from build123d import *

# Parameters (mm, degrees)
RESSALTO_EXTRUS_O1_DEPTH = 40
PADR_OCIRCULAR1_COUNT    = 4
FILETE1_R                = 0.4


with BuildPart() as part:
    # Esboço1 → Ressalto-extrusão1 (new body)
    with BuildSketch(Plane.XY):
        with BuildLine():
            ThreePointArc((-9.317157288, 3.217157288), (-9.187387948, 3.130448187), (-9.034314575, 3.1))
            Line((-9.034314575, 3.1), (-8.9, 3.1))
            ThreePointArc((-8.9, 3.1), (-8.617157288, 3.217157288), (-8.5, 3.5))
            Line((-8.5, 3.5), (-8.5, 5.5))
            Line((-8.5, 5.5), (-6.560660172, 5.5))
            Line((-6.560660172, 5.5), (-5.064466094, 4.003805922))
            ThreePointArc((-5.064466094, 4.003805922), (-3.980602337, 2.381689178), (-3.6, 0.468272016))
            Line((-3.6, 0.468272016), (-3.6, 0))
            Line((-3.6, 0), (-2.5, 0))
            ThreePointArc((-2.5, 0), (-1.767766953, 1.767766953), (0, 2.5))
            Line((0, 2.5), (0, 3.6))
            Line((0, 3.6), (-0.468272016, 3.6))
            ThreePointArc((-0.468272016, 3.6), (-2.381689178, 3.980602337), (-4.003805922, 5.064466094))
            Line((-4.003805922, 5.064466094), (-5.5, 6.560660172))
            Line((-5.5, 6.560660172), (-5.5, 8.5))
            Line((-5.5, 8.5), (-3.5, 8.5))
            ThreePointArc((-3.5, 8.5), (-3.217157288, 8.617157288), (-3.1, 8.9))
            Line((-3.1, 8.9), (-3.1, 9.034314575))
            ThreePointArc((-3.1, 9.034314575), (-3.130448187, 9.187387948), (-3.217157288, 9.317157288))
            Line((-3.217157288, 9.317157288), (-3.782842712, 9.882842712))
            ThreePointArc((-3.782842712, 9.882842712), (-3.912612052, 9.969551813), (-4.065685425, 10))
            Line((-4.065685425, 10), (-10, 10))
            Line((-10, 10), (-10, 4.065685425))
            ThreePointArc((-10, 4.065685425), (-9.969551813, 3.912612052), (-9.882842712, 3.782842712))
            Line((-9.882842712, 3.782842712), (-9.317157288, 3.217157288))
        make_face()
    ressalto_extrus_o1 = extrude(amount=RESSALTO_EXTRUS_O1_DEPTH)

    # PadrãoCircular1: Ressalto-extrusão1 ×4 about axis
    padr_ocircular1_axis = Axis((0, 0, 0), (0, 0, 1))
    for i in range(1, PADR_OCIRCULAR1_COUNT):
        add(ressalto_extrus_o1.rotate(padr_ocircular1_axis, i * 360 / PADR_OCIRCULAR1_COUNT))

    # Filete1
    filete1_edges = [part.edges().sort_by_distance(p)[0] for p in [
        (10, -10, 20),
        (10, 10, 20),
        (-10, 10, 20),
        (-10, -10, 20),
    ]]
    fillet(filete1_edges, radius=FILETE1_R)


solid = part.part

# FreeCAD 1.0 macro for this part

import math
import FreeCAD as App
import Part
import Sketcher
from FreeCAD import Vector
Q = App.Units.Quantity


def edges_at(feature, points):
    """Names of the edges that pass closest to the given points."""
    edges = feature.Shape.Edges
    near = lambda p: min(range(len(edges)), key=lambda i: edges[i].distToShape(Part.Vertex(*p))[0])
    return sorted({f"Edge{near(p) + 1}" for p in points})

doc = App.newDocument("Part")
body = doc.addObject("PartDesign::Body", "Body")

sketch1 = body.newObject("Sketcher::SketchObject", "Sketch")
sketch1.AttachmentSupport = (doc.getObject("XY_Plane"), [""])
sketch1.MapMode = "FlatFace"
sketch1.addGeometry([
    Part.ArcOfCircle(Part.Circle(Vector(-9.034315, 3.5, 0), Vector(0, 0, 1), 0.4), math.radians(-135), math.radians(-90)),
    Part.LineSegment(Vector(-9.034315, 3.1, 0), Vector(-8.9, 3.1, 0)),
    Part.ArcOfCircle(Part.Circle(Vector(-8.9, 3.5, 0), Vector(0, 0, 1), 0.4), math.radians(-90), math.radians(0)),
    Part.LineSegment(Vector(-8.5, 3.5, 0), Vector(-8.5, 5.5, 0)),
    Part.LineSegment(Vector(-8.5, 5.5, 0), Vector(-6.56066, 5.5, 0)),
    Part.LineSegment(Vector(-6.56066, 5.5, 0), Vector(-5.064466, 4.003806, 0)),
    Part.ArcOfCircle(Part.Circle(Vector(-8.6, 0.468272, 0), Vector(0, 0, 1), 5), math.radians(0), math.radians(45)),
    Part.LineSegment(Vector(-3.6, 0.468272, 0), Vector(-3.6, 0, 0)),
    Part.LineSegment(Vector(-3.6, 0, 0), Vector(-2.5, 0, 0)),
    Part.ArcOfCircle(Part.Circle(Vector(0, 0, 0), Vector(0, 0, 1), 2.5), math.radians(90), math.radians(180)),
    Part.LineSegment(Vector(0, 2.5, 0), Vector(0, 3.6, 0)),
    Part.LineSegment(Vector(0, 3.6, 0), Vector(-0.468272, 3.6, 0)),
    Part.ArcOfCircle(Part.Circle(Vector(-0.468272, 8.6, 0), Vector(0, 0, 1), 5), math.radians(-135), math.radians(-90)),
    Part.LineSegment(Vector(-4.003806, 5.064466, 0), Vector(-5.5, 6.56066, 0)),
    Part.LineSegment(Vector(-5.5, 6.56066, 0), Vector(-5.5, 8.5, 0)),
    Part.LineSegment(Vector(-5.5, 8.5, 0), Vector(-3.5, 8.5, 0)),
    Part.ArcOfCircle(Part.Circle(Vector(-3.5, 8.9, 0), Vector(0, 0, 1), 0.4), math.radians(-90), math.radians(0)),
    Part.LineSegment(Vector(-3.1, 8.9, 0), Vector(-3.1, 9.034315, 0)),
    Part.ArcOfCircle(Part.Circle(Vector(-3.5, 9.034315, 0), Vector(0, 0, 1), 0.4), math.radians(0), math.radians(45)),
    Part.LineSegment(Vector(-3.217157, 9.317157, 0), Vector(-3.782843, 9.882843, 0)),
    Part.ArcOfCircle(Part.Circle(Vector(-4.065685, 9.6, 0), Vector(0, 0, 1), 0.4), math.radians(45), math.radians(90)),
    Part.LineSegment(Vector(-4.065685, 10, 0), Vector(-10, 10, 0)),
    Part.LineSegment(Vector(-10, 10, 0), Vector(-10, 4.065685, 0)),
    Part.ArcOfCircle(Part.Circle(Vector(-9.6, 4.065685, 0), Vector(0, 0, 1), 0.4), math.radians(180), math.radians(225)),
    Part.LineSegment(Vector(-9.882843, 3.782843, 0), Vector(-9.317157, 3.217157, 0)),
], False)
sketch1.addConstraint([
    Sketcher.Constraint("Tangent", 0, 2, 1, 1),
    Sketcher.Constraint("Tangent", 1, 2, 2, 1),
    Sketcher.Constraint("Tangent", 2, 2, 3, 1),
    Sketcher.Constraint("Coincident", 3, 2, 4, 1),
    Sketcher.Constraint("Coincident", 4, 2, 5, 1),
    Sketcher.Constraint("Tangent", 5, 2, 6, 2),
    Sketcher.Constraint("Tangent", 6, 1, 7, 1),
    Sketcher.Constraint("Coincident", 7, 2, 8, 1),
    Sketcher.Constraint("Coincident", 8, 2, 9, 2),
    Sketcher.Constraint("Coincident", 9, 1, 10, 1),
    Sketcher.Constraint("Coincident", 10, 2, 11, 1),
    Sketcher.Constraint("Tangent", 11, 2, 12, 2),
    Sketcher.Constraint("Tangent", 12, 1, 13, 1),
    Sketcher.Constraint("Coincident", 13, 2, 14, 1),
    Sketcher.Constraint("Coincident", 14, 2, 15, 1),
    Sketcher.Constraint("Tangent", 15, 2, 16, 1),
    Sketcher.Constraint("Tangent", 16, 2, 17, 1),
    Sketcher.Constraint("Tangent", 17, 2, 18, 1),
    Sketcher.Constraint("Tangent", 18, 2, 19, 1),
    Sketcher.Constraint("Tangent", 19, 2, 20, 1),
    Sketcher.Constraint("Tangent", 20, 2, 21, 1),
    Sketcher.Constraint("Coincident", 21, 2, 22, 1),
    Sketcher.Constraint("Tangent", 22, 2, 23, 1),
    Sketcher.Constraint("Tangent", 23, 2, 24, 1),
    Sketcher.Constraint("Tangent", 24, 2, 0, 1),
    Sketcher.Constraint("Horizontal", 1),
    Sketcher.Constraint("Vertical", 3),
    Sketcher.Constraint("Horizontal", 4),
    Sketcher.Constraint("Vertical", 7),
    Sketcher.Constraint("Horizontal", 8),
    Sketcher.Constraint("Vertical", 10),
    Sketcher.Constraint("Horizontal", 11),
    Sketcher.Constraint("Vertical", 14),
    Sketcher.Constraint("Horizontal", 15),
    Sketcher.Constraint("Vertical", 17),
    Sketcher.Constraint("Horizontal", 21),
    Sketcher.Constraint("Vertical", 22),
    Sketcher.Constraint("Coincident", 9, 3, -1, 1),
    Sketcher.Constraint("Equal", 0, 2),
    Sketcher.Constraint("Equal", 6, 12),
    Sketcher.Constraint("Equal", 2, 16),
    Sketcher.Constraint("Equal", 16, 18),
    Sketcher.Constraint("Equal", 18, 20),
    Sketcher.Constraint("Equal", 20, 23),
    Sketcher.Constraint("PointOnObject", 7, 2, -1),
    Sketcher.Constraint("PointOnObject", 9, 1, -2),
    Sketcher.Constraint("Parallel", 5, 13),
    Sketcher.Constraint("Parallel", 13, 19),
    Sketcher.Constraint("Parallel", 19, 24),
    Sketcher.Constraint("Equal", 15, 3),
    Sketcher.Constraint("Equal", 11, 7),
    Sketcher.Constraint("Equal", 8, 10),
    Sketcher.Constraint("Equal", 4, 14),
    Sketcher.Constraint("Equal", 1, 17),
    Sketcher.Constraint("Equal", 21, 22),
    Sketcher.Constraint("Equal", 5, 13),
    Sketcher.Constraint("Equal", 19, 24),
    Sketcher.Constraint("Radius", 6, Q("5 mm")),
    Sketcher.Constraint("Radius", 0, Q("0.4 mm")),
    Sketcher.Constraint("Radius", 9, Q("2.5 mm")),
    Sketcher.Constraint("DistanceX", 15, 1, 15, 2, Q("2 mm")),
    Sketcher.Constraint("DistanceX", 8, 1, 8, 2, Q("1.1 mm")),
    Sketcher.Constraint("DistanceY", -1, 1, 20, 2, Q("10 mm")),
    Sketcher.Constraint("DistanceY", 4, 2, 14, 2, Q("3 mm")),
    Sketcher.Constraint("Distance", 19, Q("0.8 mm")),
    Sketcher.Constraint("DistanceY", -1, 1, 0, 3, Q("3.5 mm")),
    Sketcher.Constraint("DistanceX", 4, 1, 4, 2, Q("1.93934 mm")),
])
pad1 = body.newObject("PartDesign::Pad", "Pad")
pad1.Profile = sketch1
pad1.Length = 40
doc.recompute()

polarpattern = body.newObject("PartDesign::PolarPattern", "PolarPattern")
polarpattern.Originals = [pad1]
polarpattern.Axis = (doc.getObject("Z_Axis"), [""])
polarpattern.Angle = 360
polarpattern.Occurrences = 4
body.Tip = polarpattern
doc.recompute()

fillet = body.newObject("PartDesign::Fillet", "Fillet")
fillet.Base = (polarpattern, edges_at(polarpattern, [
    (10, -10, 20),
    (10, 10, 20),
    (-10, 10, 20),
    (-10, -10, 20),
]))
fillet.Radius = 0.4

doc.recompute()
